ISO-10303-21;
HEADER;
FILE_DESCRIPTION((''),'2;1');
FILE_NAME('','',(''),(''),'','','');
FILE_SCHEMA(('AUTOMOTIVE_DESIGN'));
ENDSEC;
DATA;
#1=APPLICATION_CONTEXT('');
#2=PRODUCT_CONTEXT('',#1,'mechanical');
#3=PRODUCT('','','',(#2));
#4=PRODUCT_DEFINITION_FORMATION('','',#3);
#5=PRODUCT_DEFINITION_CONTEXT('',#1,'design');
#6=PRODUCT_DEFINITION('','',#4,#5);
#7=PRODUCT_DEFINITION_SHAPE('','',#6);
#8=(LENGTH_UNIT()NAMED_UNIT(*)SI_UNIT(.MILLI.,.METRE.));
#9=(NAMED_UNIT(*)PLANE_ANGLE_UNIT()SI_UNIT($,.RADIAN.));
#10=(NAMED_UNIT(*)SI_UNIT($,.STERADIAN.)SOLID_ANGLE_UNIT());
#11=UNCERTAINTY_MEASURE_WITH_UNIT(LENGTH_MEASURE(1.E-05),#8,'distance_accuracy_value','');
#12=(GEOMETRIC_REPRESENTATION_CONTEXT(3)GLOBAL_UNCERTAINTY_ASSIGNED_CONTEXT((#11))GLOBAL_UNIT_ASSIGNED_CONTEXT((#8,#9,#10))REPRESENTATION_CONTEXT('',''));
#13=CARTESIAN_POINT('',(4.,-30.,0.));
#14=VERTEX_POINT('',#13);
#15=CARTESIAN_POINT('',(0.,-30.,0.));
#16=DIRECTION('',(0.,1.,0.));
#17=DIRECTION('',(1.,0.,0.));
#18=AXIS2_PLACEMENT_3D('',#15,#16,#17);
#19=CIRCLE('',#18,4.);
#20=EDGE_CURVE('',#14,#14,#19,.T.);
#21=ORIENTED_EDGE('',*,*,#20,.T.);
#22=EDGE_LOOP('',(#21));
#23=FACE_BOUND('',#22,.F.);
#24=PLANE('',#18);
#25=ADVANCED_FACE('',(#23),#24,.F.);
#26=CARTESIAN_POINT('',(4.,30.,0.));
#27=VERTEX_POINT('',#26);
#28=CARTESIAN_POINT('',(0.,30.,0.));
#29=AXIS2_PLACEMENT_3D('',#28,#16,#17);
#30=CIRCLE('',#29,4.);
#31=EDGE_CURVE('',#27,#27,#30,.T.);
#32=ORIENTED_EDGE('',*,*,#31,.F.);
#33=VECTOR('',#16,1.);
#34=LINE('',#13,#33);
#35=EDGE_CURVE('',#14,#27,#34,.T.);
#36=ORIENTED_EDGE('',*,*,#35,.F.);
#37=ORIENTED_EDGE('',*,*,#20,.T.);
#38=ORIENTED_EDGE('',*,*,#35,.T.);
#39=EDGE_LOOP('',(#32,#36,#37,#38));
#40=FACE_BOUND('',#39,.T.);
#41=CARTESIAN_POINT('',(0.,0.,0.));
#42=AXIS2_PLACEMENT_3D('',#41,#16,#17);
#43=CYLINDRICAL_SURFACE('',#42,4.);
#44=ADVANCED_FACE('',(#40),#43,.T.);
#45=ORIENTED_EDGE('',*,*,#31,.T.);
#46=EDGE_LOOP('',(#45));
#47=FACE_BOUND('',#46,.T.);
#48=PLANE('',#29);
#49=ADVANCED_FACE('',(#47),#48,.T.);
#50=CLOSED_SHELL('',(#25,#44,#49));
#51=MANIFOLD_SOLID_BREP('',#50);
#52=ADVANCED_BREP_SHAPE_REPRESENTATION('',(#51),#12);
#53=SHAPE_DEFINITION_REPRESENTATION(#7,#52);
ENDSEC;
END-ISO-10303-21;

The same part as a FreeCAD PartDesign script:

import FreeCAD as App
import Part
import Sketcher

V = App.Vector

doc = App.newDocument("Part")
body = doc.addObject("PartDesign::Body", "Body")

# Sketch on XZ plane
sketch1 = body.newObject("Sketcher::SketchObject", "Sketch")
sketch1.AttachmentSupport = (doc.getObject("XZ_Plane"), [""])
sketch1.MapMode = "FlatFace"
sketch1.addGeometry(Part.Circle(V(0, 0, 0), V(0, 0, 1), 4), False)
sketch1.addConstraint([
    Sketcher.Constraint("Coincident", 0, 3, -1, 1),
    Sketcher.Constraint("Diameter", 0, 8.0),
])
pad1 = body.newObject("PartDesign::Pad", "Pad")
pad1.Profile = sketch1
pad1.Length = 60
pad1.Midplane = True

doc.recompute()
